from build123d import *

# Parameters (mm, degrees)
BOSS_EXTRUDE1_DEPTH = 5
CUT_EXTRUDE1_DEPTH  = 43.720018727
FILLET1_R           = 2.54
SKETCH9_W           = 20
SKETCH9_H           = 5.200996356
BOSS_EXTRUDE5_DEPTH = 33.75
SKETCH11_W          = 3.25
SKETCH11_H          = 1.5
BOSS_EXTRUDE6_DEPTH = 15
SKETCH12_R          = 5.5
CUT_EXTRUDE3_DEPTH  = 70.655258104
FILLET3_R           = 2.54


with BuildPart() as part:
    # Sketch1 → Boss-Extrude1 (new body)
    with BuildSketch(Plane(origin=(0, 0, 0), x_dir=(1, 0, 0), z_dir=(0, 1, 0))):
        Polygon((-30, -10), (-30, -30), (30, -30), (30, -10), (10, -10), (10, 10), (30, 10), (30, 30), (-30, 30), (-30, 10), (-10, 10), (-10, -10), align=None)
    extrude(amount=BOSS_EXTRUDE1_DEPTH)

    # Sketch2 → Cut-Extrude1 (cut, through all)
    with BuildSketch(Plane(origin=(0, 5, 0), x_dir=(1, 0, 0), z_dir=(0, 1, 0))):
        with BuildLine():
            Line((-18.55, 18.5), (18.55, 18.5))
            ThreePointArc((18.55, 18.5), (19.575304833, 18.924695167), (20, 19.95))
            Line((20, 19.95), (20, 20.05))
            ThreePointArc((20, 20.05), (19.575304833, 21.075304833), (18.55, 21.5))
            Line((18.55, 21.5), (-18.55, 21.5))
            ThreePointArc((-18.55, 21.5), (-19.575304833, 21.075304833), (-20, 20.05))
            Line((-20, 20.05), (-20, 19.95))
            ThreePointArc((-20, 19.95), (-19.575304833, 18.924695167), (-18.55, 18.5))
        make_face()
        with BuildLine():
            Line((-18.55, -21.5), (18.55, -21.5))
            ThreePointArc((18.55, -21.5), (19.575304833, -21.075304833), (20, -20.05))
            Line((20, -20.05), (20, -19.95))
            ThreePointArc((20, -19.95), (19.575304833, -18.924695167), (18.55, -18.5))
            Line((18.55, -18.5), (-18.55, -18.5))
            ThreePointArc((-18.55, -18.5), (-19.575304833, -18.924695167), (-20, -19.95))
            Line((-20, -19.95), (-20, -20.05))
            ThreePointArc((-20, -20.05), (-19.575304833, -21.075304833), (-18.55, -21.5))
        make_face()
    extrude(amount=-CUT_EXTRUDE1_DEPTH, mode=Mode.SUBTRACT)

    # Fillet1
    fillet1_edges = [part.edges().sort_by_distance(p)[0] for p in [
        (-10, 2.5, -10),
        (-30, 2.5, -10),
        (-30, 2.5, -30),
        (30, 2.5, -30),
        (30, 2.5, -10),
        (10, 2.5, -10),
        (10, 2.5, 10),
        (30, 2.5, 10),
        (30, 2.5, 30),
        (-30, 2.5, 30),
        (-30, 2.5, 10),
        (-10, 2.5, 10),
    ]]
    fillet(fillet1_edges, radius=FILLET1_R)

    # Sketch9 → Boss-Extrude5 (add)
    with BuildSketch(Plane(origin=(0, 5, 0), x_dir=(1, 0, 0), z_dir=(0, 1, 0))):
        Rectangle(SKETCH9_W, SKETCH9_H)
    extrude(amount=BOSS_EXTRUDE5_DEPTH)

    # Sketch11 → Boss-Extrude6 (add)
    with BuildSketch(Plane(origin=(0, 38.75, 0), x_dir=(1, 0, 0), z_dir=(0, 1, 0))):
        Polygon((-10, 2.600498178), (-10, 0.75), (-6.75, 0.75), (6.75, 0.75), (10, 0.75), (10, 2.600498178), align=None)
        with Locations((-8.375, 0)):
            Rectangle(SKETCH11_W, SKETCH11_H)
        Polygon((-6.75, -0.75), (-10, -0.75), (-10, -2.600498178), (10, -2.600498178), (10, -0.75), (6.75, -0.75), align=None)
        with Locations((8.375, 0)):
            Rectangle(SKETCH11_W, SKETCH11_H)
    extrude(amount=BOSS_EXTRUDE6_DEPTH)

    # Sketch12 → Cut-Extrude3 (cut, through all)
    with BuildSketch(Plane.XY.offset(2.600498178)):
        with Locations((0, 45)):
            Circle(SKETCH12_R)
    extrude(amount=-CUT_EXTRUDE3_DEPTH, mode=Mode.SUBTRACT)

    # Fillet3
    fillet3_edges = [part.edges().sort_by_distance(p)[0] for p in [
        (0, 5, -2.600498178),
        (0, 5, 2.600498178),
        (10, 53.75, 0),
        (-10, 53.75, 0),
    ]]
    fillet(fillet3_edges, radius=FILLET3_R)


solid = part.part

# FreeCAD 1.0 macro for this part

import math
import FreeCAD as App
import Part
import Sketcher

V = App.Vector
Q = App.Units.Quantity


def edges_at(feature, points):
    """Names of the edges that pass closest to the given points."""
    edges = feature.Shape.Edges
    near = lambda p: min(range(len(edges)), key=lambda i: edges[i].distToShape(Part.Vertex(*p))[0])
    return sorted({f"Edge{near(p) + 1}" for p in points})

doc = App.newDocument("Part")
body = doc.addObject("PartDesign::Body", "Body")

# Sketch on XZ plane
sketch1 = body.newObject("Sketcher::SketchObject", "Sketch")
sketch1.AttachmentSupport = (doc.getObject("XZ_Plane"), [""])
sketch1.MapMode = "FlatFace"
sketch1.addGeometry(Part.LineSegment(V(-30, 10, 0), V(-30, 30, 0)), False)
sketch1.addGeometry(Part.LineSegment(V(-30, 30, 0), V(30, 30, 0)), False)
sketch1.addGeometry(Part.LineSegment(V(30, 30, 0), V(30, 10, 0)), False)
sketch1.addGeometry(Part.LineSegment(V(30, 10, 0), V(10, 10, 0)), False)
sketch1.addGeometry(Part.LineSegment(V(10, 10, 0), V(10, -10, 0)), False)
sketch1.addGeometry(Part.LineSegment(V(10, -10, 0), V(30, -10, 0)), False)
sketch1.addGeometry(Part.LineSegment(V(30, -10, 0), V(30, -30, 0)), False)
sketch1.addGeometry(Part.LineSegment(V(30, -30, 0), V(-30, -30, 0)), False)
sketch1.addGeometry(Part.LineSegment(V(-30, -30, 0), V(-30, -10, 0)), False)
sketch1.addGeometry(Part.LineSegment(V(-30, -10, 0), V(-10, -10, 0)), False)
sketch1.addGeometry(Part.LineSegment(V(-10, -10, 0), V(-10, 10, 0)), False)
sketch1.addGeometry(Part.LineSegment(V(-10, 10, 0), V(-30, 10, 0)), False)
sketch1.addConstraint(Sketcher.Constraint("Coincident", 0, 2, 1, 1))
sketch1.addConstraint(Sketcher.Constraint("Coincident", 1, 2, 2, 1))
sketch1.addConstraint(Sketcher.Constraint("Coincident", 2, 2, 3, 1))
sketch1.addConstraint(Sketcher.Constraint("Coincident", 3, 2, 4, 1))
sketch1.addConstraint(Sketcher.Constraint("Coincident", 4, 2, 5, 1))
sketch1.addConstraint(Sketcher.Constraint("Coincident", 5, 2, 6, 1))
sketch1.addConstraint(Sketcher.Constraint("Coincident", 6, 2, 7, 1))
sketch1.addConstraint(Sketcher.Constraint("Coincident", 7, 2, 8, 1))
sketch1.addConstraint(Sketcher.Constraint("Coincident", 8, 2, 9, 1))
sketch1.addConstraint(Sketcher.Constraint("Coincident", 9, 2, 10, 1))
sketch1.addConstraint(Sketcher.Constraint("Coincident", 10, 2, 11, 1))
sketch1.addConstraint(Sketcher.Constraint("Coincident", 11, 2, 0, 1))
sketch1.addConstraint(Sketcher.Constraint("Vertical", 0))
sketch1.addConstraint(Sketcher.Constraint("Horizontal", 1))
sketch1.addConstraint(Sketcher.Constraint("Vertical", 2))
sketch1.addConstraint(Sketcher.Constraint("Horizontal", 3))
sketch1.addConstraint(Sketcher.Constraint("Vertical", 4))
sketch1.addConstraint(Sketcher.Constraint("Horizontal", 5))
sketch1.addConstraint(Sketcher.Constraint("Vertical", 6))
sketch1.addConstraint(Sketcher.Constraint("Horizontal", 7))
sketch1.addConstraint(Sketcher.Constraint("Vertical", 8))
sketch1.addConstraint(Sketcher.Constraint("Horizontal", 9))
sketch1.addConstraint(Sketcher.Constraint("Vertical", 10))
sketch1.addConstraint(Sketcher.Constraint("Horizontal", 11))
sketch1.addConstraint(Sketcher.Constraint("Symmetric", 0, 2, 6, 2, -1, 1))
sketch1.addConstraint(Sketcher.Constraint("Symmetric", 2, 2, 8, 2, -1, 1))
sketch1.addConstraint(Sketcher.Constraint("Symmetric", 4, 2, 10, 2, -1, 1))
sketch1.addConstraint(Sketcher.Constraint("Symmetric", 5, 2, 8, 2, -2))
sketch1.addConstraint(Sketcher.Constraint("Equal", 11, 0))
sketch1.addConstraint(Sketcher.Constraint("Equal", 2, 4))
sketch1.addConstraint(Sketcher.Constraint("DistanceX", 1, 1, 1, 2, Q("60 mm")))
sketch1.addConstraint(Sketcher.Constraint("DistanceX", 3, 2, 3, 1, Q("20 mm")))
pad1 = body.newObject("PartDesign::Pad", "Pad")
pad1.Profile = sketch1
pad1.Length = 5
pad1.Reversed = True

# Sketch on XZ plane
sketch2 = body.newObject("Sketcher::SketchObject", "Sketch001")
sketch2.AttachmentSupport = (doc.getObject("XZ_Plane"), [""])
sketch2.MapMode = "FlatFace"
sketch2.AttachmentOffset = App.Placement(V(0, 0, -5), App.Rotation())
sketch2.addGeometry(Part.LineSegment(V(-18.55, -18.5, 0), V(18.55, -18.5, 0)), False)
sketch2.addGeometry(Part.ArcOfCircle(Part.Circle(V(18.55, -19.95, 0), V(0, 0, 1), 1.45), math.radians(0), math.radians(90)), False)
sketch2.addGeometry(Part.LineSegment(V(20, -19.95, 0), V(20, -20.05, 0)), False)
sketch2.addGeometry(Part.ArcOfCircle(Part.Circle(V(18.55, -20.05, 0), V(0, 0, 1), 1.45), math.radians(-90), math.radians(0)), False)
sketch2.addGeometry(Part.LineSegment(V(18.55, -21.5, 0), V(-18.55, -21.5, 0)), False)
sketch2.addGeometry(Part.ArcOfCircle(Part.Circle(V(-18.55, -20.05, 0), V(0, 0, 1), 1.45), math.radians(180), math.radians(270)), False)
sketch2.addGeometry(Part.LineSegment(V(-20, -20.05, 0), V(-20, -19.95, 0)), False)
sketch2.addGeometry(Part.ArcOfCircle(Part.Circle(V(-18.55, -19.95, 0), V(0, 0, 1), 1.45), math.radians(90), math.radians(180)), False)
sketch2.addGeometry(Part.LineSegment(V(-18.55, 21.5, 0), V(18.55, 21.5, 0)), False)
sketch2.addGeometry(Part.ArcOfCircle(Part.Circle(V(18.55, 20.05, 0), V(0, 0, 1), 1.45), math.radians(0), math.radians(90)), False)
sketch2.addGeometry(Part.LineSegment(V(20, 20.05, 0), V(20, 19.95, 0)), False)
sketch2.addGeometry(Part.ArcOfCircle(Part.Circle(V(18.55, 19.95, 0), V(0, 0, 1), 1.45), math.radians(-90), math.radians(0)), False)
sketch2.addGeometry(Part.LineSegment(V(18.55, 18.5, 0), V(-18.55, 18.5, 0)), False)
sketch2.addGeometry(Part.ArcOfCircle(Part.Circle(V(-18.55, 19.95, 0), V(0, 0, 1), 1.45), math.radians(180), math.radians(270)), False)
sketch2.addGeometry(Part.LineSegment(V(-20, 19.95, 0), V(-20, 20.05, 0)), False)
sketch2.addGeometry(Part.ArcOfCircle(Part.Circle(V(-18.55, 20.05, 0), V(0, 0, 1), 1.45), math.radians(90), math.radians(180)), False)
sketch2.addConstraint(Sketcher.Constraint("Tangent", 0, 2, 1, 2))
sketch2.addConstraint(Sketcher.Constraint("Tangent", 1, 1, 2, 1))
sketch2.addConstraint(Sketcher.Constraint("Tangent", 2, 2, 3, 2))
sketch2.addConstraint(Sketcher.Constraint("Tangent", 3, 1, 4, 1))
sketch2.addConstraint(Sketcher.Constraint("Tangent", 4, 2, 5, 2))
sketch2.addConstraint(Sketcher.Constraint("Tangent", 5, 1, 6, 1))
sketch2.addConstraint(Sketcher.Constraint("Tangent", 6, 2, 7, 2))
sketch2.addConstraint(Sketcher.Constraint("Tangent", 7, 1, 0, 1))
sketch2.addConstraint(Sketcher.Constraint("Tangent", 8, 2, 9, 2))
sketch2.addConstraint(Sketcher.Constraint("Tangent", 9, 1, 10, 1))
sketch2.addConstraint(Sketcher.Constraint("Tangent", 10, 2, 11, 2))
sketch2.addConstraint(Sketcher.Constraint("Tangent", 11, 1, 12, 1))
sketch2.addConstraint(Sketcher.Constraint("Tangent", 12, 2, 13, 2))
sketch2.addConstraint(Sketcher.Constraint("Tangent", 13, 1, 14, 1))
sketch2.addConstraint(Sketcher.Constraint("Tangent", 14, 2, 15, 2))
sketch2.addConstraint(Sketcher.Constraint("Tangent", 15, 1, 8, 1))
sketch2.addConstraint(Sketcher.Constraint("Horizontal", 0))
sketch2.addConstraint(Sketcher.Constraint("Vertical", 2))
sketch2.addConstraint(Sketcher.Constraint("Horizontal", 4))
sketch2.addConstraint(Sketcher.Constraint("Vertical", 6))
sketch2.addConstraint(Sketcher.Constraint("Horizontal", 8))
sketch2.addConstraint(Sketcher.Constraint("Vertical", 10))
sketch2.addConstraint(Sketcher.Constraint("Horizontal", 12))
sketch2.addConstraint(Sketcher.Constraint("Vertical", 14))
sketch2.addConstraint(Sketcher.Constraint("Equal", 1, 3))
sketch2.addConstraint(Sketcher.Constraint("Equal", 3, 5))
sketch2.addConstraint(Sketcher.Constraint("Equal", 5, 7))
sketch2.addConstraint(Sketcher.Constraint("Equal", 7, 9))
sketch2.addConstraint(Sketcher.Constraint("Equal", 9, 11))
sketch2.addConstraint(Sketcher.Constraint("Equal", 11, 13))
sketch2.addConstraint(Sketcher.Constraint("Equal", 13, 15))
sketch2.addConstraint(Sketcher.Constraint("Symmetric", 5, 3, 9, 3, -1, 1))
sketch2.addConstraint(Sketcher.Constraint("Symmetric", 1, 3, 13, 3, -1, 1))
sketch2.addConstraint(Sketcher.Constraint("Vertical", 3, 3, 9, 3))
sketch2.addConstraint(Sketcher.Constraint("Radius", 1, Q("1.45 mm")))
sketch2.addConstraint(Sketcher.Constraint("DistanceX", 0, 1, 0, 2, Q("37.1 mm")))
sketch2.addConstraint(Sketcher.Constraint("DistanceY", 2, 2, 2, 1, Q("0.1 mm")))
sketch2.addConstraint(Sketcher.Constraint("DistanceY", 1, 3, 9, 3, Q("40 mm")))
pocket1 = body.newObject("PartDesign::Pocket", "Pocket")
pocket1.Profile = sketch2
pocket1.Type = "ThroughAll"
pocket1.Reversed = True
doc.recompute()

fillet = body.newObject("PartDesign::Fillet", "Fillet")
fillet.Base = (pocket1, edges_at(pocket1, [
    (-10, 2.5, -10),
    (-30, 2.5, -10),
    (-30, 2.5, -30),
    (30, 2.5, -30),
    (30, 2.5, -10),
    (10, 2.5, -10),
    (10, 2.5, 10),
    (30, 2.5, 10),
    (30, 2.5, 30),
    (-30, 2.5, 30),
    (-30, 2.5, 10),
    (-10, 2.5, 10),
]))
fillet.Radius = 2.54

# Sketch on XZ plane
sketch3 = body.newObject("Sketcher::SketchObject", "Sketch002")
sketch3.AttachmentSupport = (doc.getObject("XZ_Plane"), [""])
sketch3.MapMode = "FlatFace"
sketch3.AttachmentOffset = App.Placement(V(0, 0, -5), App.Rotation())
sketch3.addGeometry(Part.LineSegment(V(-10, -2.600498, 0), V(-10, 2.600498, 0)), False)
sketch3.addGeometry(Part.LineSegment(V(-10, 2.600498, 0), V(10, 2.600498, 0)), False)
sketch3.addGeometry(Part.LineSegment(V(10, 2.600498, 0), V(10, -2.600498, 0)), False)
sketch3.addGeometry(Part.LineSegment(V(10, -2.600498, 0), V(-10, -2.600498, 0)), False)
sketch3.addConstraint(Sketcher.Constraint("Coincident", 0, 2, 1, 1))
sketch3.addConstraint(Sketcher.Constraint("Coincident", 1, 2, 2, 1))
sketch3.addConstraint(Sketcher.Constraint("Coincident", 2, 2, 3, 1))
sketch3.addConstraint(Sketcher.Constraint("Coincident", 3, 2, 0, 1))
sketch3.addConstraint(Sketcher.Constraint("Vertical", 0))
sketch3.addConstraint(Sketcher.Constraint("Horizontal", 1))
sketch3.addConstraint(Sketcher.Constraint("Vertical", 2))
sketch3.addConstraint(Sketcher.Constraint("Horizontal", 3))
sketch3.addConstraint(Sketcher.Constraint("Symmetric", 0, 2, 2, 2, -1, 1))
sketch3.addConstraint(Sketcher.Constraint("DistanceX", 1, 1, 1, 2, Q("20 mm")))
sketch3.addConstraint(Sketcher.Constraint("DistanceY", -1, 1, 0, 2, Q("2.600498 mm")))
pad2 = body.newObject("PartDesign::Pad", "Pad001")
pad2.Profile = sketch3
pad2.Length = 33.75
pad2.Reversed = True

# Sketch on XZ plane
sketch4 = body.newObject("Sketcher::SketchObject", "Sketch003")
sketch4.AttachmentSupport = (doc.getObject("XZ_Plane"), [""])
sketch4.MapMode = "FlatFace"
sketch4.AttachmentOffset = App.Placement(V(0, 0, -38.75), App.Rotation())
sketch4.addGeometry(Part.LineSegment(V(-10, -2.600498, 0), V(-10, 2.600498, 0)), False)
sketch4.addGeometry(Part.LineSegment(V(-10, 2.600498, 0), V(10, 2.600498, 0)), False)
sketch4.addGeometry(Part.LineSegment(V(10, 2.600498, 0), V(10, -2.600498, 0)), False)
sketch4.addGeometry(Part.LineSegment(V(10, -2.600498, 0), V(-10, -2.600498, 0)), False)
sketch4.addGeometry(Part.LineSegment(V(6.75, 0.75, 0), V(-6.75, 0.75, 0)), False)
sketch4.addGeometry(Part.LineSegment(V(-6.75, 0.75, 0), V(-6.75, -0.75, 0)), False)
sketch4.addGeometry(Part.LineSegment(V(-6.75, -0.75, 0), V(6.75, -0.75, 0)), False)
sketch4.addGeometry(Part.LineSegment(V(6.75, -0.75, 0), V(6.75, 0.75, 0)), False)
sketch4.addConstraint(Sketcher.Constraint("Coincident", 0, 2, 1, 1))
sketch4.addConstraint(Sketcher.Constraint("Coincident", 1, 2, 2, 1))
sketch4.addConstraint(Sketcher.Constraint("Coincident", 2, 2, 3, 1))
sketch4.addConstraint(Sketcher.Constraint("Coincident", 3, 2, 0, 1))
sketch4.addConstraint(Sketcher.Constraint("Coincident", 4, 2, 5, 1))
sketch4.addConstraint(Sketcher.Constraint("Coincident", 5, 2, 6, 1))
sketch4.addConstraint(Sketcher.Constraint("Coincident", 6, 2, 7, 1))
sketch4.addConstraint(Sketcher.Constraint("Coincident", 7, 2, 4, 1))
sketch4.addConstraint(Sketcher.Constraint("Vertical", 0))
sketch4.addConstraint(Sketcher.Constraint("Horizontal", 1))
sketch4.addConstraint(Sketcher.Constraint("Vertical", 2))
sketch4.addConstraint(Sketcher.Constraint("Horizontal", 3))
sketch4.addConstraint(Sketcher.Constraint("Horizontal", 4))
sketch4.addConstraint(Sketcher.Constraint("Vertical", 5))
sketch4.addConstraint(Sketcher.Constraint("Horizontal", 6))
sketch4.addConstraint(Sketcher.Constraint("Vertical", 7))
sketch4.addConstraint(Sketcher.Constraint("Symmetric", 0, 2, 2, 2, -1, 1))
sketch4.addConstraint(Sketcher.Constraint("Symmetric", 4, 2, 6, 2, -1, 1))
sketch4.addConstraint(Sketcher.Constraint("DistanceX", 1, 1, 1, 2, Q("20 mm")))
sketch4.addConstraint(Sketcher.Constraint("DistanceX", 4, 2, 4, 1, Q("13.5 mm")))
sketch4.addConstraint(Sketcher.Constraint("DistanceY", 5, 2, 5, 1, Q("1.5 mm")))
sketch4.addConstraint(Sketcher.Constraint("DistanceY", -1, 1, 0, 2, Q("2.600498 mm")))
pad3 = body.newObject("PartDesign::Pad", "Pad002")
pad3.Profile = sketch4
pad3.Length = 15
pad3.Reversed = True

# Sketch on XY plane
sketch5 = body.newObject("Sketcher::SketchObject", "Sketch004")
sketch5.AttachmentSupport = (doc.getObject("XY_Plane"), [""])
sketch5.MapMode = "FlatFace"
sketch5.AttachmentOffset = App.Placement(V(0, 0, 2.600498), App.Rotation())
sketch5.addGeometry(Part.Circle(V(0, 45, 0), V(0, 0, 1), 5.5), False)
sketch5.addConstraint(Sketcher.Constraint("PointOnObject", 0, 3, -2))
sketch5.addConstraint(Sketcher.Constraint("Diameter", 0, Q("11 mm")))
sketch5.addConstraint(Sketcher.Constraint("DistanceY", -1, 1, 0, 3, Q("45 mm")))
pocket2 = body.newObject("PartDesign::Pocket", "Pocket001")
pocket2.Profile = sketch5
pocket2.Type = "ThroughAll"
doc.recompute()

fillet2 = body.newObject("PartDesign::Fillet", "Fillet001")
fillet2.Base = (pocket2, edges_at(pocket2, [
    (0, 5, -2.6),
    (0, 5, 2.6),
    (10, 53.75, 0),
    (-10, 53.75, 0),
]))
fillet2.Radius = 2.54

doc.recompute()
